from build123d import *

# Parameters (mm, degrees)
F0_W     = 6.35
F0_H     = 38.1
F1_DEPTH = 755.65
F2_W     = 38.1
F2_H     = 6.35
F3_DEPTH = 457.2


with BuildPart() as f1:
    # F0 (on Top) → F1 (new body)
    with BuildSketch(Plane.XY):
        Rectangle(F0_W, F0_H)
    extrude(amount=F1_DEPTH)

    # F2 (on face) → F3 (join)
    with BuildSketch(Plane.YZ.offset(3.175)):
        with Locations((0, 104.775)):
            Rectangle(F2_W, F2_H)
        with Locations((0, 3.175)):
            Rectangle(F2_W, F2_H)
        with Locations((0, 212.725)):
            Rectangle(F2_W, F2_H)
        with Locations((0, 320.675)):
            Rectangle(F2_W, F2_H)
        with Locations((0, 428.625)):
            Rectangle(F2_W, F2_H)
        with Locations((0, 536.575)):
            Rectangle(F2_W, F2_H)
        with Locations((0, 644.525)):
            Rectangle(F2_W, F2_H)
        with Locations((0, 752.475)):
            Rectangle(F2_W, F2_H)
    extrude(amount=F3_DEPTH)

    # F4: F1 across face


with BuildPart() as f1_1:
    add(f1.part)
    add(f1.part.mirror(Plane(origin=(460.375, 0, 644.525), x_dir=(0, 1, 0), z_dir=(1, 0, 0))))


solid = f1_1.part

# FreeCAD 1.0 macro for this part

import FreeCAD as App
import Part
import Sketcher
Q = App.Units.Quantity

doc = App.newDocument("Part")
body = doc.addObject("PartDesign::Body", "Body")

# Sketch on XY plane
sketch1 = body.newObject("Sketcher::SketchObject", "Sketch")
sketch1.AttachmentSupport = (doc.getObject("XY_Plane"), [""])
sketch1.MapMode = "FlatFace"
sketch1.addGeometry([
    Part.LineSegment(App.Vector(-3, 19, 0), App.Vector(-3, -19, 0)),
    Part.LineSegment(App.Vector(-3, -19, 0), App.Vector(3, -19, 0)),
    Part.LineSegment(App.Vector(3, -19, 0), App.Vector(3, 19, 0)),
    Part.LineSegment(App.Vector(3, 19, 0), App.Vector(-3, 19, 0)),
], False)
sketch1.addConstraint([
    Sketcher.Constraint("Coincident", 0, 2, 1, 1),
    Sketcher.Constraint("Coincident", 1, 2, 2, 1),
    Sketcher.Constraint("Coincident", 2, 2, 3, 1),
    Sketcher.Constraint("Coincident", 3, 2, 0, 1),
    Sketcher.Constraint("Vertical", 0),
    Sketcher.Constraint("Horizontal", 1),
    Sketcher.Constraint("Vertical", 2),
    Sketcher.Constraint("Horizontal", 3),
    Sketcher.Constraint("Symmetric", 0, 2, 2, 2, -1, 1),
    Sketcher.Constraint("DistanceY", 0, 2, 0, 1, Q("1.5 in")),
    Sketcher.Constraint("DistanceX", 1, 1, 1, 2, Q("0.25 in")),
])
pad1 = body.newObject("PartDesign::Pad", "Pad")
pad1.Profile = sketch1
pad1.Length = Q("29.75 in")

# Sketch on YZ plane
sketch2 = body.newObject("Sketcher::SketchObject", "Sketch001")
sketch2.AttachmentSupport = (doc.getObject("YZ_Plane"), [""])
sketch2.MapMode = "FlatFace"
sketch2.AttachmentOffset = App.Placement(App.Vector(0, 0, 0.125 * 25.4), App.Rotation())
sketch2.addGeometry([
    Part.LineSegment(App.Vector(-19, 108, 0), App.Vector(-19, 102, 0)),  # 0
    Part.LineSegment(App.Vector(-19, 102, 0), App.Vector(19, 102, 0)),  # 1
    Part.LineSegment(App.Vector(19, 102, 0), App.Vector(19, 108, 0)),  # 2
    Part.LineSegment(App.Vector(19, 108, 0), App.Vector(-19, 108, 0)),  # 3
    Part.LineSegment(App.Vector(-19, 6, 0), App.Vector(-19, 0, 0)),  # 4
    Part.LineSegment(App.Vector(-19, 0, 0), App.Vector(19, 0, 0)),  # 5
    Part.LineSegment(App.Vector(19, 0, 0), App.Vector(19, 6, 0)),  # 6
    Part.LineSegment(App.Vector(19, 6, 0), App.Vector(-19, 6, 0)),  # 7
    Part.LineSegment(App.Vector(-19, 216, 0), App.Vector(-19, 210, 0)),  # 8
    Part.LineSegment(App.Vector(-19, 210, 0), App.Vector(19, 210, 0)),  # 9
    Part.LineSegment(App.Vector(19, 210, 0), App.Vector(19, 216, 0)),  # 10
    Part.LineSegment(App.Vector(19, 216, 0), App.Vector(-19, 216, 0)),  # 11
    Part.LineSegment(App.Vector(-19, 324, 0), App.Vector(-19, 318, 0)),  # 12
    Part.LineSegment(App.Vector(-19, 318, 0), App.Vector(19, 318, 0)),  # 13
    Part.LineSegment(App.Vector(19, 318, 0), App.Vector(19, 324, 0)),  # 14
    Part.LineSegment(App.Vector(19, 324, 0), App.Vector(-19, 324, 0)),  # 15
    Part.LineSegment(App.Vector(-19, 432, 0), App.Vector(-19, 425, 0)),  # 16
    Part.LineSegment(App.Vector(-19, 425, 0), App.Vector(19, 425, 0)),  # 17
    Part.LineSegment(App.Vector(19, 425, 0), App.Vector(19, 432, 0)),  # 18
    Part.LineSegment(App.Vector(19, 432, 0), App.Vector(-19, 432, 0)),  # 19
    Part.LineSegment(App.Vector(-19, 540, 0), App.Vector(-19, 533, 0)),  # 20
    Part.LineSegment(App.Vector(-19, 533, 0), App.Vector(19, 533, 0)),  # 21
    Part.LineSegment(App.Vector(19, 533, 0), App.Vector(19, 540, 0)),  # 22
    Part.LineSegment(App.Vector(19, 540, 0), App.Vector(-19, 540, 0)),  # 23
    Part.LineSegment(App.Vector(-19, 648, 0), App.Vector(-19, 641, 0)),  # 24
    Part.LineSegment(App.Vector(-19, 641, 0), App.Vector(19, 641, 0)),  # 25
    Part.LineSegment(App.Vector(19, 641, 0), App.Vector(19, 648, 0)),  # 26
    Part.LineSegment(App.Vector(19, 648, 0), App.Vector(-19, 648, 0)),  # 27
    Part.LineSegment(App.Vector(-19, 756, 0), App.Vector(-19, 749, 0)),  # 28
    Part.LineSegment(App.Vector(-19, 749, 0), App.Vector(19, 749, 0)),  # 29
    Part.LineSegment(App.Vector(19, 749, 0), App.Vector(19, 756, 0)),  # 30
    Part.LineSegment(App.Vector(19, 756, 0), App.Vector(-19, 756, 0)),  # 31
], False)
sketch2.addConstraint([
    Sketcher.Constraint("Coincident", 0, 2, 1, 1),
    Sketcher.Constraint("Coincident", 1, 2, 2, 1),
    Sketcher.Constraint("Coincident", 2, 2, 3, 1),
    Sketcher.Constraint("Coincident", 3, 2, 0, 1),
    Sketcher.Constraint("Coincident", 4, 2, 5, 1),
    Sketcher.Constraint("Coincident", 5, 2, 6, 1),
    Sketcher.Constraint("Coincident", 6, 2, 7, 1),
    Sketcher.Constraint("Coincident", 7, 2, 4, 1),
    Sketcher.Constraint("Coincident", 8, 2, 9, 1),
    Sketcher.Constraint("Coincident", 9, 2, 10, 1),
    Sketcher.Constraint("Coincident", 10, 2, 11, 1),
    Sketcher.Constraint("Coincident", 11, 2, 8, 1),
    Sketcher.Constraint("Coincident", 12, 2, 13, 1),
    Sketcher.Constraint("Coincident", 13, 2, 14, 1),
    Sketcher.Constraint("Coincident", 14, 2, 15, 1),
    Sketcher.Constraint("Coincident", 15, 2, 12, 1),
    Sketcher.Constraint("Coincident", 16, 2, 17, 1),
    Sketcher.Constraint("Coincident", 17, 2, 18, 1),
    Sketcher.Constraint("Coincident", 18, 2, 19, 1),
    Sketcher.Constraint("Coincident", 19, 2, 16, 1),
    Sketcher.Constraint("Coincident", 20, 2, 21, 1),
    Sketcher.Constraint("Coincident", 21, 2, 22, 1),
    Sketcher.Constraint("Coincident", 22, 2, 23, 1),
    Sketcher.Constraint("Coincident", 23, 2, 20, 1),
    Sketcher.Constraint("Coincident", 24, 2, 25, 1),
    Sketcher.Constraint("Coincident", 25, 2, 26, 1),
    Sketcher.Constraint("Coincident", 26, 2, 27, 1),
    Sketcher.Constraint("Coincident", 27, 2, 24, 1),
    Sketcher.Constraint("Coincident", 28, 2, 29, 1),
    Sketcher.Constraint("Coincident", 29, 2, 30, 1),
    Sketcher.Constraint("Coincident", 30, 2, 31, 1),
    Sketcher.Constraint("Coincident", 31, 2, 28, 1),
    Sketcher.Constraint("Vertical", 0),
    Sketcher.Constraint("Horizontal", 1),
    Sketcher.Constraint("Vertical", 2),
    Sketcher.Constraint("Horizontal", 3),
    Sketcher.Constraint("Vertical", 4),
    Sketcher.Constraint("Horizontal", 5),
    Sketcher.Constraint("Vertical", 6),
    Sketcher.Constraint("Horizontal", 7),
    Sketcher.Constraint("Vertical", 8),
    Sketcher.Constraint("Horizontal", 9),
    Sketcher.Constraint("Vertical", 10),
    Sketcher.Constraint("Horizontal", 11),
    Sketcher.Constraint("Vertical", 12),
    Sketcher.Constraint("Horizontal", 13),
    Sketcher.Constraint("Vertical", 14),
    Sketcher.Constraint("Horizontal", 15),
    Sketcher.Constraint("Vertical", 16),
    Sketcher.Constraint("Horizontal", 17),
    Sketcher.Constraint("Vertical", 18),
    Sketcher.Constraint("Horizontal", 19),
    Sketcher.Constraint("Vertical", 20),
    Sketcher.Constraint("Horizontal", 21),
    Sketcher.Constraint("Vertical", 22),
    Sketcher.Constraint("Horizontal", 23),
    Sketcher.Constraint("Vertical", 24),
    Sketcher.Constraint("Horizontal", 25),
    Sketcher.Constraint("Vertical", 26),
    Sketcher.Constraint("Horizontal", 27),
    Sketcher.Constraint("Vertical", 28),
    Sketcher.Constraint("Horizontal", 29),
    Sketcher.Constraint("Vertical", 30),
    Sketcher.Constraint("Horizontal", 31),
    Sketcher.Constraint("Symmetric", 4, 2, 5, 2, -1, 1),
    Sketcher.Constraint("Vertical", 3, 2, 4, 2),
    Sketcher.Constraint("Vertical", 2, 2, 5, 2),
    Sketcher.Constraint("Vertical", 7, 2, 8, 2),
    Sketcher.Constraint("Vertical", 6, 2, 9, 2),
    Sketcher.Constraint("Vertical", 11, 2, 12, 2),
    Sketcher.Constraint("Vertical", 10, 2, 13, 2),
    Sketcher.Constraint("Vertical", 15, 2, 16, 2),
    Sketcher.Constraint("Vertical", 14, 2, 17, 2),
    Sketcher.Constraint("Vertical", 19, 2, 20, 2),
    Sketcher.Constraint("Vertical", 18, 2, 21, 2),
    Sketcher.Constraint("Vertical", 23, 2, 24, 2),
    Sketcher.Constraint("Vertical", 22, 2, 25, 2),
    Sketcher.Constraint("Vertical", 27, 2, 28, 2),
    Sketcher.Constraint("Vertical", 26, 2, 29, 2),
    Sketcher.Constraint("Equal", 2, 4),
    Sketcher.Constraint("Equal", 6, 8),
    Sketcher.Constraint("Equal", 10, 12),
    Sketcher.Constraint("Equal", 14, 16),
    Sketcher.Constraint("Equal", 18, 20),
    Sketcher.Constraint("Equal", 22, 24),
    Sketcher.Constraint("Equal", 26, 28),
    Sketcher.Constraint("DistanceX", 1, 1, 1, 2, Q("1.5 in")),
    Sketcher.Constraint("DistanceY", -1, 1, 0, 2, Q("4 in")),
    Sketcher.Constraint("DistanceY", -1, 1, 18, 2, Q("17 in")),
    Sketcher.Constraint("DistanceY", -1, 1, 20, 2, Q("21 in")),
    Sketcher.Constraint("DistanceY", 3, 2, 8, 2, Q("4 in")),
    Sketcher.Constraint("DistanceY", 11, 2, 12, 2, Q("4 in")),
    Sketcher.Constraint("DistanceY", 15, 2, 16, 2, Q("4 in")),
    Sketcher.Constraint("DistanceY", 23, 2, 24, 2, Q("4 in")),
    Sketcher.Constraint("DistanceY", 27, 2, 28, 2, Q("4 in")),
])
pad2 = body.newObject("PartDesign::Pad", "Pad001")
pad2.Profile = sketch2
pad2.Length = Q("18 in")
body2 = doc.addObject("PartDesign::Body", "Body001")
doc.recompute()

body2.BaseFeature = body
doc.recompute()

mirroring = doc.addObject("Part::Mirroring", "Mirroring")
mirroring.Source = body
mirroring.Base = App.Vector(460.375, 0, 644.525)
mirroring.Normal = App.Vector(1, 0, 0)
body3 = doc.addObject("PartDesign::Body", "Body002")
body3.BaseFeature = mirroring
boolean = body2.newObject("PartDesign::Boolean", "Boolean")
boolean.Type = "Fuse"
boolean.addObjects([body3])
doc.recompute()
mirroring.Visibility = False

doc.recompute()
